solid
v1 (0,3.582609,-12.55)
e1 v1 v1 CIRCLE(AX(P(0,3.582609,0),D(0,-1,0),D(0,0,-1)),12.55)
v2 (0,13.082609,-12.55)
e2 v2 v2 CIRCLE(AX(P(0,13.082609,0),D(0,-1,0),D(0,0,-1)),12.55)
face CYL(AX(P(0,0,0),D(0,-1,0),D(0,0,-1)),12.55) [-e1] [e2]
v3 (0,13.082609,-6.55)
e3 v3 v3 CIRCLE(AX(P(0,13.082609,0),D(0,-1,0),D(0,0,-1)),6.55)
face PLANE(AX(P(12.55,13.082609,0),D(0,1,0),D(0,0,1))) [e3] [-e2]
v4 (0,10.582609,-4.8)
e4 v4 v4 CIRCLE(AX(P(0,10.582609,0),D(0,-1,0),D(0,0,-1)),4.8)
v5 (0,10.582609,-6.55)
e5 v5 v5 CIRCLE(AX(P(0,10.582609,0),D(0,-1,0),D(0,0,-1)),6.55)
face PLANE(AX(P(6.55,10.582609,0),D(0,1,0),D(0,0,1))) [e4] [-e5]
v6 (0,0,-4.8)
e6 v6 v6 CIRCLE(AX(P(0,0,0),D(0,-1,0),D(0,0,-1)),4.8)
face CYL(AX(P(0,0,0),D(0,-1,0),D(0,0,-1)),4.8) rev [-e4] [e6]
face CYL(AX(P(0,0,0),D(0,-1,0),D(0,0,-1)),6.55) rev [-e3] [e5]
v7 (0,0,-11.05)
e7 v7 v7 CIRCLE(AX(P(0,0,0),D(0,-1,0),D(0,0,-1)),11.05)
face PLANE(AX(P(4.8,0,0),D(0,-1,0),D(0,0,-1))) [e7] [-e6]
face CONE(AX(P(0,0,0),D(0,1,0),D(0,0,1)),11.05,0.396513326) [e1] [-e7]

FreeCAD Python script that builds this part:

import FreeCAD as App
import Part
import Sketcher
from FreeCAD import Vector
Q = App.Units.Quantity


def add_polygon(sketch, points):
    """Adds a closed chain of lines whose ends are joined by coincident constraints."""
    first, n = sketch.GeometryCount, len(points)
    for a, b in zip(points, points[1:] + points[:1]):
        sketch.addGeometry(Part.LineSegment(App.Vector(*a, 0), App.Vector(*b, 0)), False)
    for i in range(n):
        sketch.addConstraint(Sketcher.Constraint("Coincident", first + i, 2, first + (i + 1) % n, 1))

doc = App.newDocument("Part")
params = doc.addObject("Spreadsheet::Sheet", "Params")
for row, (alias, value) in enumerate([
    ("sketch1_width", "6 mm"),
    ("sketch1_height", "9.5 mm"),
    ("sketch1_height2", "2.5 mm"),
    ("sketch1_width2", "6.25 mm"),
    ("sketch1_width3", "1.75 mm"),
    ("revolution_angle", "360 deg"),
], start=1):
    params.set(f"A{row}", alias)
    params.set(f"B{row}", "=" + value)
    params.setAlias(f"B{row}", alias)

body = doc.addObject("PartDesign::Body", "Body")

# Sketch on XY plane
sketch1 = body.newObject("Sketcher::SketchObject", "Sketch")
sketch1.AttachmentSupport = (doc.getObject("XY_Plane"), [""])
sketch1.MapMode = "FlatFace"
add_polygon(sketch1, [(4.8, 0), (11.1, 0), (12.6, 3.6), (12.6, 13.1), (6.5, 13.1), (6.5, 10.6), (4.8, 10.6)])  # lines 0-6
sketch1.addConstraint(Sketcher.Constraint("Horizontal", 0))
sketch1.addConstraint(Sketcher.Constraint("Vertical", 2))
sketch1.addConstraint(Sketcher.Constraint("Horizontal", 3))
sketch1.addConstraint(Sketcher.Constraint("Vertical", 4))
sketch1.addConstraint(Sketcher.Constraint("Horizontal", 5))
sketch1.addConstraint(Sketcher.Constraint("Vertical", 6))
sketch1.addConstraint(Sketcher.Constraint("PointOnObject", 0, 2, -1))
sketch1.addConstraint(Sketcher.Constraint("DistanceX", 3, 2, 3, 1, Q("6 mm")))
sketch1.addConstraint(Sketcher.Constraint("DistanceY", 2, 1, 2, 2, Q("9.5 mm")))
sketch1.addConstraint(Sketcher.Constraint("DistanceY", 4, 2, 4, 1, Q("2.5 mm")))
sketch1.addConstraint(Sketcher.Constraint("DistanceX", 0, 1, 0, 2, Q("6.25 mm")))
sketch1.addConstraint(Sketcher.Constraint("DistanceX", 5, 2, 5, 1, Q("1.75 mm")))
sketch1.addConstraint(Sketcher.Constraint("DistanceX", -1, 1, 5, 2, Q("4.8 mm")))
sketch1.addConstraint(Sketcher.Constraint("DistanceY", 6, 2, 6, 1, Q("10.582609 mm")))
sketch1.setExpression("Constraints[14]", "Params.sketch1_width")
sketch1.setExpression("Constraints[15]", "Params.sketch1_height")
sketch1.setExpression("Constraints[16]", "Params.sketch1_height2")
sketch1.setExpression("Constraints[17]", "Params.sketch1_width2")
sketch1.setExpression("Constraints[18]", "Params.sketch1_width3")
revolution = body.newObject("PartDesign::Revolution", "Revolution")
revolution.Profile = sketch1
revolution.ReferenceAxis = (sketch1, ["V_Axis"])
revolution.setExpression("Angle", "Params.revolution_angle")

doc.recompute()
